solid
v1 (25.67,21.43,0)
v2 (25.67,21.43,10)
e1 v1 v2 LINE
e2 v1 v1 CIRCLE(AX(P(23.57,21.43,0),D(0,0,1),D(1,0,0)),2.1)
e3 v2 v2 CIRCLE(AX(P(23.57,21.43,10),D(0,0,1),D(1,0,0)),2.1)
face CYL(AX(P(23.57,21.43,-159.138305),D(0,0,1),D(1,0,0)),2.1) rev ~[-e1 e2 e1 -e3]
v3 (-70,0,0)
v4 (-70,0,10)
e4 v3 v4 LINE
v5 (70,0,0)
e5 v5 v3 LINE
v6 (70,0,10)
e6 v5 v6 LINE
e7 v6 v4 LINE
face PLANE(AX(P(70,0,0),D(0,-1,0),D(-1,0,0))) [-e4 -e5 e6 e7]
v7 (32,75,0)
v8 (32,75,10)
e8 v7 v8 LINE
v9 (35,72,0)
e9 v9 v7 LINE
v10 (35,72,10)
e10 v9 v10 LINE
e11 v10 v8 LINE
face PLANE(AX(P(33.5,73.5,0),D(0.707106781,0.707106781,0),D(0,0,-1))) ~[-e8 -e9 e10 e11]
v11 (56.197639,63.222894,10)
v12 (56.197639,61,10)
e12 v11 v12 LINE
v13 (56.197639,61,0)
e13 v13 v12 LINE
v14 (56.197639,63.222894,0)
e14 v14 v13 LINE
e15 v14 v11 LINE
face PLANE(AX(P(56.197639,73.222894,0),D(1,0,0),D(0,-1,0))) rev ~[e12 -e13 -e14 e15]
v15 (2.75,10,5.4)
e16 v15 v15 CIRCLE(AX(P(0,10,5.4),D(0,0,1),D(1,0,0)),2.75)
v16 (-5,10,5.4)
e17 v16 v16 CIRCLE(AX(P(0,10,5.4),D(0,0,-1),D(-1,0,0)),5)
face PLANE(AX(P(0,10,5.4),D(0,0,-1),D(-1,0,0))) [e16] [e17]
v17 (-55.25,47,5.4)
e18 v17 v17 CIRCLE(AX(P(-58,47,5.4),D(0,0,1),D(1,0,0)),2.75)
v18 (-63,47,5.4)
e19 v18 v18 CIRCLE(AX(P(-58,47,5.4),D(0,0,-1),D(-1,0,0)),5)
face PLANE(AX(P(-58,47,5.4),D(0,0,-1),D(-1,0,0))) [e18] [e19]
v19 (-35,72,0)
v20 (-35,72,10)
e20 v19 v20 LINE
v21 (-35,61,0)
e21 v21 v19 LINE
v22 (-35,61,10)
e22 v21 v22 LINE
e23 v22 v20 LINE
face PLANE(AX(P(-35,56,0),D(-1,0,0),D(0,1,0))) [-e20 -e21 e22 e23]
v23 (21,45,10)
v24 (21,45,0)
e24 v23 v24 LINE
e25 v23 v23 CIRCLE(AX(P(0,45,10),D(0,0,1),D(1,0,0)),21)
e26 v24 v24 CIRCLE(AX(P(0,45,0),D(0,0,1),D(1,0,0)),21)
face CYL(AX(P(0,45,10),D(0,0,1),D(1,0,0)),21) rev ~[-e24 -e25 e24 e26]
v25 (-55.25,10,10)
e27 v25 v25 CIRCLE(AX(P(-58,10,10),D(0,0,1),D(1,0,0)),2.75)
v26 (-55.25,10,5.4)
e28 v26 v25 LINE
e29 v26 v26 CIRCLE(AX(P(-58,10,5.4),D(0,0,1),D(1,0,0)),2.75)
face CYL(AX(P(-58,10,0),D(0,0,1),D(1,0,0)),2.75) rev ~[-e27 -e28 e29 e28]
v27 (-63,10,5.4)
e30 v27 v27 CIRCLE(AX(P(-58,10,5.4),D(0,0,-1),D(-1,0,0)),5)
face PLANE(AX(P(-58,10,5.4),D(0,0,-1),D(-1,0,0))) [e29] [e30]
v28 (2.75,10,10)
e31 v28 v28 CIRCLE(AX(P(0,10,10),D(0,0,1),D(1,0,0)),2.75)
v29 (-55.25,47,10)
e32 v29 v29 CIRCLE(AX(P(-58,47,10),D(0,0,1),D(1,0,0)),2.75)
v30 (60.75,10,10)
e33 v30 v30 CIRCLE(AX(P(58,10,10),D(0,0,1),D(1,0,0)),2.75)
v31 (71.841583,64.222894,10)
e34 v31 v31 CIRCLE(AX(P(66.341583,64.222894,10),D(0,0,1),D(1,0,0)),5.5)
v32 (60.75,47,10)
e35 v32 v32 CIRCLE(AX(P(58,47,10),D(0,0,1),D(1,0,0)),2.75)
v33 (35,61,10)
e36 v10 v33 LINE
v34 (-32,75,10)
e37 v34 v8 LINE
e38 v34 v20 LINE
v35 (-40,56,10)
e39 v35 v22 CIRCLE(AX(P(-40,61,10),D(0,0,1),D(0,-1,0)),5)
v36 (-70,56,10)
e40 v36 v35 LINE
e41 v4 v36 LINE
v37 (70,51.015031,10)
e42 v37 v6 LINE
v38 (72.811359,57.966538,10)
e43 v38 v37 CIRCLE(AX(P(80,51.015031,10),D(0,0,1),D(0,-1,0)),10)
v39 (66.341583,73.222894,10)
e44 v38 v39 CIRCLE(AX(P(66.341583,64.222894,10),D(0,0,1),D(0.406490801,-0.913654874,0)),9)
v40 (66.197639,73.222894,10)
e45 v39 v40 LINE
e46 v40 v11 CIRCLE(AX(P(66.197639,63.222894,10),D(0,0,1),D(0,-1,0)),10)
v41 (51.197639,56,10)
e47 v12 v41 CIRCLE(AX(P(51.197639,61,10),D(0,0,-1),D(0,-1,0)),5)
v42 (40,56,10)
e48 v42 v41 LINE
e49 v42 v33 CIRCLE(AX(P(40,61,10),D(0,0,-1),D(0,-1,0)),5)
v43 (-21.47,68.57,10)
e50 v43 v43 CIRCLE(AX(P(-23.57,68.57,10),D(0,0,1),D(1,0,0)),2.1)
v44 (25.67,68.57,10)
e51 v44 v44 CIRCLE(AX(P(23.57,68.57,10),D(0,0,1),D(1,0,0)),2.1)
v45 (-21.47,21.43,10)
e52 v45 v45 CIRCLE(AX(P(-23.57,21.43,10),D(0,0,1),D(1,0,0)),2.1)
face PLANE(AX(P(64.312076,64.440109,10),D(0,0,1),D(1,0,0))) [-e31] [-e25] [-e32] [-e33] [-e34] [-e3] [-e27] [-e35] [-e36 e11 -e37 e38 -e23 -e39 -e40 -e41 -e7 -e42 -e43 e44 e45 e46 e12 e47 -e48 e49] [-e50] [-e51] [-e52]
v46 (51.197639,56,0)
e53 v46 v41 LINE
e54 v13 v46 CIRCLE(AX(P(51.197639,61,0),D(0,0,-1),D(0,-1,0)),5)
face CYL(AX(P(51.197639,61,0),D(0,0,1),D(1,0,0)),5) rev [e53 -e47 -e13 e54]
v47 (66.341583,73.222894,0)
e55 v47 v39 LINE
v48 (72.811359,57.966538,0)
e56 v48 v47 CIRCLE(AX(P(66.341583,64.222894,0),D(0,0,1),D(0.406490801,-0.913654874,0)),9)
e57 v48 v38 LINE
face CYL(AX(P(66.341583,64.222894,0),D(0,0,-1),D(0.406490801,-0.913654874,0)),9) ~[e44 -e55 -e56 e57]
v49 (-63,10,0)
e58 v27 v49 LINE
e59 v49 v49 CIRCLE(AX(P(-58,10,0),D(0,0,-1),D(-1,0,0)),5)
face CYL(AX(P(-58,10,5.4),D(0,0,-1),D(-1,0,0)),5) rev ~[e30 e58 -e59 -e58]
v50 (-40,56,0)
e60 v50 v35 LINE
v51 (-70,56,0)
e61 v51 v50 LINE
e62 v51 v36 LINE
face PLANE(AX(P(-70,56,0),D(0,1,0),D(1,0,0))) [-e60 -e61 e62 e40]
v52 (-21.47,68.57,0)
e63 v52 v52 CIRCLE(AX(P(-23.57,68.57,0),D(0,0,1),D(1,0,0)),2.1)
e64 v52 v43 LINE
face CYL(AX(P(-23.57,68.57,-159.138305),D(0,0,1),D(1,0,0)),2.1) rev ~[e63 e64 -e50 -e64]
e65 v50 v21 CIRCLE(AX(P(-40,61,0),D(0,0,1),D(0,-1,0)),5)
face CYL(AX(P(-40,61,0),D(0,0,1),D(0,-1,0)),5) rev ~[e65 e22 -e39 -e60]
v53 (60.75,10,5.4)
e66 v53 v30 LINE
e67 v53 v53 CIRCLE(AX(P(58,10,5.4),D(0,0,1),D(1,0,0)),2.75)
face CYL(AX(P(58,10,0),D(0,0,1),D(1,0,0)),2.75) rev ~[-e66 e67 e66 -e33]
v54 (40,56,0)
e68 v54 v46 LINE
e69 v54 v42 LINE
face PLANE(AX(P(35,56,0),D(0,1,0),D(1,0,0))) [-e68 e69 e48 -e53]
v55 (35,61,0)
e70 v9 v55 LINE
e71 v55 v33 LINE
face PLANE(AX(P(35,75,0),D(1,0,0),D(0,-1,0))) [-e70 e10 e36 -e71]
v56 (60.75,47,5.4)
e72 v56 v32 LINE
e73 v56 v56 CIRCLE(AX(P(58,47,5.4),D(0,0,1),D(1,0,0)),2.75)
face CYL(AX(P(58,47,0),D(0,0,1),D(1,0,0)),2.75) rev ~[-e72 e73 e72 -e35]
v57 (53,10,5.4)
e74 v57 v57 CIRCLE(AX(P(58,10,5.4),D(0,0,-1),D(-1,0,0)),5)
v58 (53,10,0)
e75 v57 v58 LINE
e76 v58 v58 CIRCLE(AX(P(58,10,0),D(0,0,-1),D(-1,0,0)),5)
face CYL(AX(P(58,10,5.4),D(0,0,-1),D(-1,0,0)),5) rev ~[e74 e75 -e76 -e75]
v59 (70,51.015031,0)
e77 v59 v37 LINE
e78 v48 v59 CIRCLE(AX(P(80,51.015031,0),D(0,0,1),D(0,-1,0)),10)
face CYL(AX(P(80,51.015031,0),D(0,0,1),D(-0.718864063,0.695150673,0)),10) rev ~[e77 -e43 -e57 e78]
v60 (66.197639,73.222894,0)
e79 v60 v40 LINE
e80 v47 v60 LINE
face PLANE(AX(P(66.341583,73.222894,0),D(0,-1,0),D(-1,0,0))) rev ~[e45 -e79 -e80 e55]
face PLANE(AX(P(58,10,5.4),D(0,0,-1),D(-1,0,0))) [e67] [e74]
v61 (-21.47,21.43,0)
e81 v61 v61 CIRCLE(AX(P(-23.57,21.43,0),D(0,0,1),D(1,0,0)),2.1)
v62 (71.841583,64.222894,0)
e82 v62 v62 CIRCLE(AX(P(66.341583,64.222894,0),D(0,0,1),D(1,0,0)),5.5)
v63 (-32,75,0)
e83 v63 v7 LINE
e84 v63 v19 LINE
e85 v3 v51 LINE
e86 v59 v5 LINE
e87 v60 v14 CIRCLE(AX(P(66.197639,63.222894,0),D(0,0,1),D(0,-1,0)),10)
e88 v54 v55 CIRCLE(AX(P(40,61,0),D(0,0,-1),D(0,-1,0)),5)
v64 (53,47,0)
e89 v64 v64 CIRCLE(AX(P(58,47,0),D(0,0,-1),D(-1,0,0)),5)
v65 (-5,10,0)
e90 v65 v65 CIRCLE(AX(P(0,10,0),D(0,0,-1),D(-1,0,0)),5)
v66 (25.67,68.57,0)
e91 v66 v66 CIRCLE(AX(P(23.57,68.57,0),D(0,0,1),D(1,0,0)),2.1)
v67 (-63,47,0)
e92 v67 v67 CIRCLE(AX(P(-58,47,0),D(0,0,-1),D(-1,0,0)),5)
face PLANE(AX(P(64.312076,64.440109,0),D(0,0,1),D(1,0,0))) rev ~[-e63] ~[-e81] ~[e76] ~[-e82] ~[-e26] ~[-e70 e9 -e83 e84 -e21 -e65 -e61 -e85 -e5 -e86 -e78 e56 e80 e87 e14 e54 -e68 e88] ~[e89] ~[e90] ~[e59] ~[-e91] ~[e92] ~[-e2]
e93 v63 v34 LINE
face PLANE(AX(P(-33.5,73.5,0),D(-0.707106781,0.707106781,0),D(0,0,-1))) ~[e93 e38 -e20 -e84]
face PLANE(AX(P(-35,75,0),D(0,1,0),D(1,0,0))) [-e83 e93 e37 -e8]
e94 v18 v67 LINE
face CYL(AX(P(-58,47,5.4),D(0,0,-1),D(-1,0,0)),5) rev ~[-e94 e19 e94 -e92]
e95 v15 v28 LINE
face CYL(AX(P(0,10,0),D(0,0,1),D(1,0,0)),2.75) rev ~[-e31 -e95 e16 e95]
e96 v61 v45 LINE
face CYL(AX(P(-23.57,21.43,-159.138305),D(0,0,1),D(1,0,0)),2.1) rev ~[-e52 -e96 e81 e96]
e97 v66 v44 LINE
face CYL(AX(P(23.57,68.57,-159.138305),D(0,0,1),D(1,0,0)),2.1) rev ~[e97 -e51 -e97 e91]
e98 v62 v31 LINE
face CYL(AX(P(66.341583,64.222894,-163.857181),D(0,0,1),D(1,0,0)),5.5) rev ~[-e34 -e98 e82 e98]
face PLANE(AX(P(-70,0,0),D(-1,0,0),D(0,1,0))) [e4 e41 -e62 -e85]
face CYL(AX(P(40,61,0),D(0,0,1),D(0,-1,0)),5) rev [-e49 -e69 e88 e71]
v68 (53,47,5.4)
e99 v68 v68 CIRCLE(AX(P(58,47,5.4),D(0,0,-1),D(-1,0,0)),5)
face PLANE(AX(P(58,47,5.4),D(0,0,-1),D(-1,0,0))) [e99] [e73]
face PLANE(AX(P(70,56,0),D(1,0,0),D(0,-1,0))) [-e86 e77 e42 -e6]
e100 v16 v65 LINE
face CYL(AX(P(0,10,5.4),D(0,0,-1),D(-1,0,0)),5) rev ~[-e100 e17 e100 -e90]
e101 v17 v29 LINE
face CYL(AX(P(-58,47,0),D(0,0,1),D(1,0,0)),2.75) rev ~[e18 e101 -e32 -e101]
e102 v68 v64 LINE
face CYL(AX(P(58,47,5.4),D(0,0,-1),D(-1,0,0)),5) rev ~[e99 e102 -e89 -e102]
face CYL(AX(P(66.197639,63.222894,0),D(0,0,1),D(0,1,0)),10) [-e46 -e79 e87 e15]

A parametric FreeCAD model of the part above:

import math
import FreeCAD as App
import Part
import Sketcher
from FreeCAD import Vector


def edges_at(feature, points):
    """Names of the edges that pass closest to the given points."""
    edges = feature.Shape.Edges
    near = lambda p: min(range(len(edges)), key=lambda i: edges[i].distToShape(Part.Vertex(*p))[0])
    return sorted({f"Edge{near(p) + 1}" for p in points})


def add_polygon(sketch, points):
    """Adds a closed chain of lines whose ends are joined by coincident constraints."""
    first, n = sketch.GeometryCount, len(points)
    for a, b in zip(points, points[1:] + points[:1]):
        sketch.addGeometry(Part.LineSegment(App.Vector(*a, 0), App.Vector(*b, 0)), False)
    for i in range(n):
        sketch.addConstraint(Sketcher.Constraint("Coincident", first + i, 2, first + (i + 1) % n, 1))

doc = App.newDocument("Part")
params = doc.addObject("Spreadsheet::Sheet", "Params")
for row, (alias, value) in enumerate([
    ("sketch1_width", "35 mm"),
    ("sketch1_width2", "70 mm"),
    ("sketch1_height", "19 mm"),
    ("sketch1_height2", "56 mm"),
    ("pad1_length", "10 mm"),
    ("sketch2_diameter", "4.2 mm"),
    ("hole_diameter", "4.2 mm"),
    ("sketch3_diameter", "42 mm"),
    ("chamfer_size", "3 mm"),
    ("sketch4_diameter", "5.5 mm"),
    ("hole2_diameter", "5.5 mm"),
    ("hole2_cbore_diameter", "10 mm"),
    ("hole2_cbore_depth", "5.4 mm"),
    ("sketch5_radius", "9 mm"),
    ("pad2_length", "10 mm"),
    ("fillet_radius", "10 mm"),
    ("fillet2_radius", "5 mm"),
    ("sketch6_diameter", "11 mm"),
    ("hole3_diameter", "11 mm"),
    ("sketch7_diameter", "11 mm"),
    ("hole4_diameter", "11 mm"),
], start=1):
    params.set(f"A{row}", alias)
    params.set(f"B{row}", "=" + value)
    params.setAlias(f"B{row}", alias)

body = doc.addObject("PartDesign::Body", "Body")

sketch1 = body.newObject("Sketcher::SketchObject", "Sketch")
sketch1.AttachmentSupport = (doc.getObject("XY_Plane"), [""])
sketch1.MapMode = "FlatFace"
add_polygon(sketch1, [(70, 56), (35, 56), (35, 75), (-35, 75), (-35, 56), (-70, 56), (-70, 0), (70, 0)])
sketch1.addConstraint(Sketcher.Constraint("Horizontal", 0))
sketch1.addConstraint(Sketcher.Constraint("Vertical", 1))
sketch1.addConstraint(Sketcher.Constraint("Horizontal", 2))
sketch1.addConstraint(Sketcher.Constraint("Vertical", 3))
sketch1.addConstraint(Sketcher.Constraint("Horizontal", 4))
sketch1.addConstraint(Sketcher.Constraint("Vertical", 5))
sketch1.addConstraint(Sketcher.Constraint("Horizontal", 6))
sketch1.addConstraint(Sketcher.Constraint("Vertical", 7))
sketch1.addConstraint(Sketcher.Constraint("Symmetric", 5, 2, 6, 2, -1, 1))
sketch1.addConstraint(Sketcher.Constraint("Symmetric", 0, 2, 3, 2, -2))
sketch1.addConstraint(Sketcher.Constraint("DistanceX", 0, 2, 0, 1, 35.0))
sketch1.addConstraint(Sketcher.Constraint("DistanceX", 2, 2, 2, 1, 70.0))
sketch1.addConstraint(Sketcher.Constraint("DistanceY", 1, 1, 1, 2, 19.0))
sketch1.addConstraint(Sketcher.Constraint("DistanceY", 5, 2, 5, 1, 56.0))
sketch1.setExpression("Constraints[18]", "Params.sketch1_width")
sketch1.setExpression("Constraints[19]", "Params.sketch1_width2")
sketch1.setExpression("Constraints[20]", "Params.sketch1_height")
sketch1.setExpression("Constraints[21]", "Params.sketch1_height2")
pad1 = body.newObject("PartDesign::Pad", "Pad")
pad1.Profile = sketch1
pad1.setExpression("Length", "Params.pad1_length")

sketch2 = body.newObject("Sketcher::SketchObject", "Sketch001")
sketch2.AttachmentSupport = (doc.getObject("XY_Plane"), [""])
sketch2.MapMode = "FlatFace"
sketch2.addGeometry(Part.Circle(Vector(23.6, 68.6, 0), Vector(0, 0, 1), 2.1), False)
sketch2.addGeometry(Part.Circle(Vector(-23.6, 68.6, 0), Vector(0, 0, 1), 2.1), False)
sketch2.addGeometry(Part.Circle(Vector(23.6, 21.4, 0), Vector(0, 0, 1), 2.1), False)
sketch2.addGeometry(Part.Circle(Vector(-23.6, 21.4, 0), Vector(0, 0, 1), 2.1), False)
sketch2.addConstraint(Sketcher.Constraint("Equal", 0, 1))
sketch2.addConstraint(Sketcher.Constraint("Equal", 1, 2))
sketch2.addConstraint(Sketcher.Constraint("Equal", 2, 3))
sketch2.addConstraint(Sketcher.Constraint("Symmetric", 0, 3, 1, 3, -2))
sketch2.addConstraint(Sketcher.Constraint("Symmetric", 2, 3, 3, 3, -2))
sketch2.addConstraint(Sketcher.Constraint("Vertical", 0, 3, 2, 3))
sketch2.addConstraint(Sketcher.Constraint("Diameter", 0, 4.2))
sketch2.addConstraint(Sketcher.Constraint("DistanceX", -1, 1, 0, 3, 23.57))
sketch2.addConstraint(Sketcher.Constraint("DistanceY", -1, 1, 0, 3, 68.57))
sketch2.addConstraint(Sketcher.Constraint("DistanceY", -1, 1, 2, 3, 21.43))
sketch2.setExpression("Constraints[6]", "Params.sketch2_diameter")
doc.recompute()
hole = body.newObject("PartDesign::Hole", "Hole")
hole.Profile = sketch2
hole.ThreadType = "None"
hole.setExpression("Diameter", "Params.hole_diameter")
hole.DepthType = "ThroughAll"
hole.Reversed = True

sketch3 = body.newObject("Sketcher::SketchObject", "Sketch002")
sketch3.AttachmentSupport = (doc.getObject("XY_Plane"), [""])
sketch3.MapMode = "FlatFace"
sketch3.AttachmentOffset = App.Placement(Vector(0, 0, 10), App.Rotation())
sketch3.addGeometry(Part.Circle(Vector(0, 45, 0), Vector(0, 0, 1), 21), False)
sketch3.addConstraint(Sketcher.Constraint("PointOnObject", 0, 3, -2))
sketch3.addConstraint(Sketcher.Constraint("Diameter", 0, 42.0))
sketch3.addConstraint(Sketcher.Constraint("DistanceY", -1, 1, 0, 3, 45.0))
sketch3.setExpression("Constraints[1]", "Params.sketch3_diameter")
pocket1 = body.newObject("PartDesign::Pocket", "Pocket")
pocket1.Profile = sketch3
pocket1.Type = "UpToFirst"
doc.recompute()

chamfer = body.newObject("PartDesign::Chamfer", "Chamfer")
chamfer.Base = (pocket1, edges_at(pocket1, [(-35, 75, 5), (35, 75, 5)]))
chamfer.setExpression("Size", "Params.chamfer_size")

sketch4 = body.newObject("Sketcher::SketchObject", "Sketch003")
sketch4.AttachmentSupport = (doc.getObject("XY_Plane"), [""])
sketch4.MapMode = "FlatFace"
sketch4.addGeometry(Part.Circle(Vector(58, 10, 0), Vector(0, 0, 1), 2.8), False)
sketch4.addGeometry(Part.Circle(Vector(0, 10, 0), Vector(0, 0, 1), 2.8), False)
sketch4.addGeometry(Part.Circle(Vector(-58, 10, 0), Vector(0, 0, 1), 2.8), False)
sketch4.addGeometry(Part.Circle(Vector(-58, 47, 0), Vector(0, 0, 1), 2.8), False)
sketch4.addGeometry(Part.Circle(Vector(58, 47, 0), Vector(0, 0, 1), 2.8), False)
sketch4.addConstraint(Sketcher.Constraint("Equal", 0, 1))
sketch4.addConstraint(Sketcher.Constraint("Equal", 1, 2))
sketch4.addConstraint(Sketcher.Constraint("Equal", 2, 3))
sketch4.addConstraint(Sketcher.Constraint("Equal", 3, 4))
sketch4.addConstraint(Sketcher.Constraint("Symmetric", 0, 3, 2, 3, -2))
sketch4.addConstraint(Sketcher.Constraint("Symmetric", 3, 3, 4, 3, -2))
sketch4.addConstraint(Sketcher.Constraint("PointOnObject", 1, 3, -2))
sketch4.addConstraint(Sketcher.Constraint("Horizontal", 0, 3, 1, 3))
sketch4.addConstraint(Sketcher.Constraint("Vertical", 2, 3, 3, 3))
sketch4.addConstraint(Sketcher.Constraint("Diameter", 0, 5.5))
sketch4.addConstraint(Sketcher.Constraint("DistanceX", -1, 1, 0, 3, 58.0))
sketch4.addConstraint(Sketcher.Constraint("DistanceY", -1, 1, 0, 3, 10.0))
sketch4.addConstraint(Sketcher.Constraint("DistanceY", -1, 1, 3, 3, 47.0))
sketch4.setExpression("Constraints[9]", "Params.sketch4_diameter")
doc.recompute()
hole2 = body.newObject("PartDesign::Hole", "Hole001")
hole2.Profile = sketch4
hole2.ThreadType = "None"
hole2.setExpression("Diameter", "Params.hole2_diameter")
hole2.DepthType = "ThroughAll"
hole2.HoleCutType = "Counterbore"
hole2.setExpression("HoleCutDiameter", "Params.hole2_cbore_diameter")
hole2.setExpression("HoleCutDepth", "Params.hole2_cbore_depth")
hole2.Reversed = True

sketch5 = body.newObject("Sketcher::SketchObject", "Sketch004")
sketch5.AttachmentSupport = (doc.getObject("XY_Plane"), [""])
sketch5.MapMode = "FlatFace"
sketch5.addGeometry(Part.LineSegment(Vector(56, 73, 0), Vector(66, 73, 0)), False)
sketch5.addGeometry(Part.ArcOfCircle(Part.Circle(Vector(66, 64, 0), Vector(0, 0, 1), 9), math.radians(-66), math.radians(90)), False)
sketch5.addGeometry(Part.LineSegment(Vector(70, 56, 0), Vector(56, 56, 0)), False)
sketch5.addGeometry(Part.LineSegment(Vector(56, 56, 0), Vector(56, 73, 0)), False)
sketch5.addConstraint(Sketcher.Constraint("Tangent", 0, 2, 1, 2))
sketch5.addConstraint(Sketcher.Constraint("Coincident", 1, 1, 2, 1))
sketch5.addConstraint(Sketcher.Constraint("Coincident", 2, 2, 3, 1))
sketch5.addConstraint(Sketcher.Constraint("Coincident", 3, 2, 0, 1))
sketch5.addConstraint(Sketcher.Constraint("Horizontal", 0))
sketch5.addConstraint(Sketcher.Constraint("Horizontal", 2))
sketch5.addConstraint(Sketcher.Constraint("Vertical", 3))
sketch5.addConstraint(Sketcher.Constraint("Radius", 1, 9.0))
sketch5.addConstraint(Sketcher.Constraint("DistanceX", -1, 1, 1, 1, 70.0))
sketch5.addConstraint(Sketcher.Constraint("DistanceY", -1, 1, 1, 1, 56.0))
sketch5.addConstraint(Sketcher.Constraint("DistanceX", 2, 2, 2, 1, 13.802361))
sketch5.addConstraint(Sketcher.Constraint("DistanceX", 0, 1, 0, 2, 10.143943))
sketch5.setExpression("Constraints[7]", "Params.sketch5_radius")
pad2 = body.newObject("PartDesign::Pad", "Pad001")
pad2.Profile = sketch5
pad2.setExpression("Length", "Params.pad2_length")
doc.recompute()

fillet = body.newObject("PartDesign::Fillet", "Fillet")
fillet.Base = (pad2, edges_at(pad2, [(56.198, 73.223, 5), (70, 56, 5)]))
fillet.setExpression("Radius", "Params.fillet_radius")
doc.recompute()

fillet2 = body.newObject("PartDesign::Fillet", "Fillet001")
fillet2.Base = (fillet, edges_at(fillet, [(56.198, 56, 5), (-35, 56, 5), (35, 56, 5)]))
fillet2.setExpression("Radius", "Params.fillet2_radius")

sketch6 = body.newObject("Sketcher::SketchObject", "Sketch005")
sketch6.AttachmentSupport = (doc.getObject("XY_Plane"), [""])
sketch6.MapMode = "FlatFace"
sketch6.addGeometry(Part.Circle(Vector(66, 64, 0), Vector(0, 0, 1), 6), False)
sketch6.addConstraint(Sketcher.Constraint("Diameter", 0, 11.0))
sketch6.addConstraint(Sketcher.Constraint("DistanceX", -1, 1, 0, 3, 66.341583))
sketch6.addConstraint(Sketcher.Constraint("DistanceY", -1, 1, 0, 3, 64.222894))
sketch6.setExpression("Constraints[0]", "Params.sketch6_diameter")
doc.recompute()
hole3 = body.newObject("PartDesign::Hole", "Hole002")
hole3.Profile = sketch6
hole3.ThreadType = "None"
hole3.setExpression("Diameter", "Params.hole3_diameter")
hole3.DepthType = "ThroughAll"
hole3.Reversed = True

sketch7 = body.newObject("Sketcher::SketchObject", "Sketch006")
sketch7.AttachmentSupport = (doc.getObject("XY_Plane"), [""])
sketch7.MapMode = "FlatFace"
sketch7.addGeometry(Part.Circle(Vector(66, 64, 0), Vector(0, 0, 1), 6), False)
sketch7.addConstraint(Sketcher.Constraint("Diameter", 0, 11.0))
sketch7.addConstraint(Sketcher.Constraint("DistanceX", -1, 1, 0, 3, 66.341583))
sketch7.addConstraint(Sketcher.Constraint("DistanceY", -1, 1, 0, 3, 64.222894))
sketch7.setExpression("Constraints[0]", "Params.sketch7_diameter")
doc.recompute()
hole4 = body.newObject("PartDesign::Hole", "Hole003")
hole4.Profile = sketch7
hole4.ThreadType = "None"
hole4.setExpression("Diameter", "Params.hole4_diameter")
hole4.DepthType = "ThroughAll"
hole4.Reversed = True

doc.recompute()
